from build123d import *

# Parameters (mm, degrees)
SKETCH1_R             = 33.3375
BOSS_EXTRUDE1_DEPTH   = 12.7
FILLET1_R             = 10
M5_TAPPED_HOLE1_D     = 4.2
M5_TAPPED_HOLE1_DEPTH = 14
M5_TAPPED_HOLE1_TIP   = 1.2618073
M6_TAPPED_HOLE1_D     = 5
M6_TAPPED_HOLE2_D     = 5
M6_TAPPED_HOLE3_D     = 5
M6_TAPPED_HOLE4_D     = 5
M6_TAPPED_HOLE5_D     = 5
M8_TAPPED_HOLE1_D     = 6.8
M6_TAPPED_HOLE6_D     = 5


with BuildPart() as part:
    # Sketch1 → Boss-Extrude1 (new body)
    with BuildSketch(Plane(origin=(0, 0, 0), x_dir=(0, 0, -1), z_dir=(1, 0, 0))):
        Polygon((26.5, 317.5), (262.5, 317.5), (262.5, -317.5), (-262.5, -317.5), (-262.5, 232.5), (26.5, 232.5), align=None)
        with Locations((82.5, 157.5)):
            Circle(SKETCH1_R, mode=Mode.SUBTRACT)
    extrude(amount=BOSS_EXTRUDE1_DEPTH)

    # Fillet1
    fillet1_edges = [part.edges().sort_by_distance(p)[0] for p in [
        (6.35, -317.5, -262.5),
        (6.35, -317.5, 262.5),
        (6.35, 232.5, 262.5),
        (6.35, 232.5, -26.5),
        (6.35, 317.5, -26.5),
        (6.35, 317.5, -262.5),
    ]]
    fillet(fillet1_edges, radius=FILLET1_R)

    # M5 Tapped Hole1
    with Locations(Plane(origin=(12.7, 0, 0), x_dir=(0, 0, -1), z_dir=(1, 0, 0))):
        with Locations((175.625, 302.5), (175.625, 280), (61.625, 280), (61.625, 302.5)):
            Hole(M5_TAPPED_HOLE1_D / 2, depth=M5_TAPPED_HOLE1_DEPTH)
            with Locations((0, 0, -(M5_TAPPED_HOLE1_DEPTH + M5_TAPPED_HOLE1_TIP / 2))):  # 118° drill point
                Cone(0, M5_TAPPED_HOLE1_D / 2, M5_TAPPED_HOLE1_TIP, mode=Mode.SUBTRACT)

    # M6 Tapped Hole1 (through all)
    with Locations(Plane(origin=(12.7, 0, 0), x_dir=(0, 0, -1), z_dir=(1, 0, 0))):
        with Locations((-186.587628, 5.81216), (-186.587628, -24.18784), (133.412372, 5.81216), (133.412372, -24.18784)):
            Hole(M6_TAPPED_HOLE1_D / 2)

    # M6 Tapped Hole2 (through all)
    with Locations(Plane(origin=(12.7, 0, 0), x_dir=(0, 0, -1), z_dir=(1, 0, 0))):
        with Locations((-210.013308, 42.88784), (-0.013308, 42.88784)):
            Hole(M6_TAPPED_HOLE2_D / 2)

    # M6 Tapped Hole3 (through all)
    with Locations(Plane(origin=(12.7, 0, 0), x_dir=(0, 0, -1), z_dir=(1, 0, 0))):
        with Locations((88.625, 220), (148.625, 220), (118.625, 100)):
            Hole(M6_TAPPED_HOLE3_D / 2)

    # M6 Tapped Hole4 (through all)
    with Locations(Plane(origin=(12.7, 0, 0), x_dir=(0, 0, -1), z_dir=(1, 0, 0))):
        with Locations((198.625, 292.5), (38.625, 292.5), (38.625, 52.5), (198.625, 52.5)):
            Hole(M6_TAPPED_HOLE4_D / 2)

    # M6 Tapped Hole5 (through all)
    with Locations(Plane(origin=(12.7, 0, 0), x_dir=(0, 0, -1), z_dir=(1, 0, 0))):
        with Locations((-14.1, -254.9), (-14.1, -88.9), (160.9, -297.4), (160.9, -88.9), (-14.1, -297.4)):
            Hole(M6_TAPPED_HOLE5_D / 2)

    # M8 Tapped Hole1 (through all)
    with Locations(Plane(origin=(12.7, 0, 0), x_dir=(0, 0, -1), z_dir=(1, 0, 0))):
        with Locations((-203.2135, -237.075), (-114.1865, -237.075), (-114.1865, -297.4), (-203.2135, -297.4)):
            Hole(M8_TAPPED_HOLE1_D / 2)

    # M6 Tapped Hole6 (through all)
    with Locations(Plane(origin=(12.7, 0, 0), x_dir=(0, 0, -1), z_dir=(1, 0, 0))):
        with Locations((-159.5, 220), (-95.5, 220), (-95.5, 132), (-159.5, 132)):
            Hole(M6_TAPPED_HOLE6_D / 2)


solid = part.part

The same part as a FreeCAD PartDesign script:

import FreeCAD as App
import Part
import Sketcher


def edges_at(feature, points):
    """Names of the edges that pass closest to the given points."""
    edges = feature.Shape.Edges
    near = lambda p: min(range(len(edges)), key=lambda i: edges[i].distToShape(Part.Vertex(*p))[0])
    return sorted({f"Edge{near(p) + 1}" for p in points})


def add_polygon(sketch, points):
    """Adds a closed chain of lines whose ends are joined by coincident constraints."""
    first, n = sketch.GeometryCount, len(points)
    for a, b in zip(points, points[1:] + points[:1]):
        sketch.addGeometry(Part.LineSegment(App.Vector(*a, 0), App.Vector(*b, 0)), False)
    for i in range(n):
        sketch.addConstraint(Sketcher.Constraint("Coincident", first + i, 2, first + (i + 1) % n, 1))

doc = App.newDocument("Part")
body = doc.addObject("PartDesign::Body", "Body")

sketch1 = body.newObject("Sketcher::SketchObject", "Sketch")
sketch1.AttachmentSupport = (doc.getObject("YZ_Plane"), [""])
sketch1.MapMode = "FlatFace"
add_polygon(sketch1, [(318, -262), (318, -26), (232, -26), (232, 262), (-318, 262), (-318, -262)])
sketch1.addGeometry(Part.Circle(App.Vector(158, -82, 0), App.Vector(0, 0, 1), 33), False)
sketch1.addConstraint([
    Sketcher.Constraint("Vertical", 0),
    Sketcher.Constraint("Horizontal", 1),
    Sketcher.Constraint("Vertical", 2),
    Sketcher.Constraint("Horizontal", 3),
    Sketcher.Constraint("Vertical", 4),
    Sketcher.Constraint("Horizontal", 5),
    Sketcher.Constraint("Symmetric", 3, 2, 5, 2, -1, 1),
    Sketcher.Constraint("DistanceX", 1, 2, 1, 1, 85.0),
    Sketcher.Constraint("DistanceX", 3, 2, 3, 1, 550.0),
    Sketcher.Constraint("DistanceY", 0, 1, 0, 2, 236.0),
    Sketcher.Constraint("DistanceY", 2, 1, 2, 2, 289.0),
    Sketcher.Constraint("Diameter", 6, 66.675),
    Sketcher.Constraint("DistanceX", 6, 3, 0, 2, 160.0),
    Sketcher.Constraint("DistanceY", 6, 3, 0, 2, 56.0),
])
pad1 = body.newObject("PartDesign::Pad", "Pad")
pad1.Profile = sketch1
pad1.Length = 12.7
doc.recompute()

fillet = body.newObject("PartDesign::Fillet", "Fillet")
fillet.Base = (pad1, edges_at(pad1, [
    (6.35, -317.5, -262.5),
    (6.35, -317.5, 262.5),
    (6.35, 232.5, 262.5),
    (6.35, 232.5, -26.5),
    (6.35, 317.5, -26.5),
    (6.35, 317.5, -262.5),
]))
fillet.Radius = 10

sketch2 = body.newObject("Sketcher::SketchObject", "Sketch001")
sketch2.AttachmentSupport = (doc.getObject("YZ_Plane"), [""])
sketch2.MapMode = "FlatFace"
sketch2.AttachmentOffset = App.Placement(App.Vector(0, 0, 12.7), App.Rotation())
sketch2.addGeometry([
    Part.Circle(App.Vector(302.5, -175.6, 0), App.Vector(0, 0, 1), 2.1),
    Part.Circle(App.Vector(280, -175.6, 0), App.Vector(0, 0, 1), 2.1),
    Part.Circle(App.Vector(280, -61.6, 0), App.Vector(0, 0, 1), 2.1),
    Part.Circle(App.Vector(302.5, -61.6, 0), App.Vector(0, 0, 1), 2.1),
], False)
sketch2.addConstraint([
    Sketcher.Constraint("Equal", 0, 1),
    Sketcher.Constraint("Equal", 1, 2),
    Sketcher.Constraint("Equal", 2, 3),
    Sketcher.Constraint("Horizontal", 0, 3, 1, 3),
    Sketcher.Constraint("Horizontal", 2, 3, 3, 3),
    Sketcher.Constraint("Vertical", 1, 3, 2, 3),
    Sketcher.Constraint("Vertical", 0, 3, 3, 3),
    Sketcher.Constraint("Diameter", 0, 4.2),
    Sketcher.Constraint("DistanceX", -1, 1, 1, 3, 280.0),
    Sketcher.Constraint("DistanceY", 1, 3, 2, 3, 114.0),
    Sketcher.Constraint("DistanceX", -1, 1, 0, 3, 302.5),
    Sketcher.Constraint("DistanceY", 0, 3, -1, 1, 175.625),
])
doc.recompute()
hole = body.newObject("PartDesign::Hole", "Hole")
hole.Profile = sketch2
hole.ThreadType = "None"
hole.Diameter = 4.2
hole.DepthType = "Dimension"
hole.Depth = 14
hole.DrillPoint = "Angled"
hole.DrillPointAngle = 118

sketch3 = body.newObject("Sketcher::SketchObject", "Sketch002")
sketch3.AttachmentSupport = (doc.getObject("YZ_Plane"), [""])
sketch3.MapMode = "FlatFace"
sketch3.AttachmentOffset = App.Placement(App.Vector(0, 0, 12.7), App.Rotation())
sketch3.addGeometry([
    Part.Circle(App.Vector(5.8, 186.6, 0), App.Vector(0, 0, 1), 2.5),
    Part.Circle(App.Vector(-24.2, 186.6, 0), App.Vector(0, 0, 1), 2.5),
    Part.Circle(App.Vector(5.8, -133.4, 0), App.Vector(0, 0, 1), 2.5),
    Part.Circle(App.Vector(-24.2, -133.4, 0), App.Vector(0, 0, 1), 2.5),
], False)
sketch3.addConstraint([
    Sketcher.Constraint("Equal", 0, 1),
    Sketcher.Constraint("Equal", 1, 2),
    Sketcher.Constraint("Equal", 2, 3),
    Sketcher.Constraint("Horizontal", 0, 3, 1, 3),
    Sketcher.Constraint("Horizontal", 2, 3, 3, 3),
    Sketcher.Constraint("Vertical", 0, 3, 2, 3),
    Sketcher.Constraint("Vertical", 1, 3, 3, 3),
    Sketcher.Constraint("Diameter", 0, 5.0),
    Sketcher.Constraint("DistanceX", 1, 3, 0, 3, 30.0),
    Sketcher.Constraint("DistanceY", 2, 3, 0, 3, 320.0),
    Sketcher.Constraint("DistanceX", -1, 1, 0, 3, 5.81216),
    Sketcher.Constraint("DistanceY", -1, 1, 0, 3, 186.587628),
])
doc.recompute()
hole2 = body.newObject("PartDesign::Hole", "Hole001")
hole2.Profile = sketch3
hole2.ThreadType = "None"
hole2.Diameter = 5
hole2.DepthType = "ThroughAll"

sketch4 = body.newObject("Sketcher::SketchObject", "Sketch003")
sketch4.AttachmentSupport = (doc.getObject("YZ_Plane"), [""])
sketch4.MapMode = "FlatFace"
sketch4.AttachmentOffset = App.Placement(App.Vector(0, 0, 12.7), App.Rotation())
sketch4.addGeometry([
    Part.Circle(App.Vector(42.9, 210, 0), App.Vector(0, 0, 1), 2.5),
    Part.Circle(App.Vector(42.9, 0, 0), App.Vector(0, 0, 1), 2.5),
], False)
sketch4.addConstraint([
    Sketcher.Constraint("Equal", 0, 1),
    Sketcher.Constraint("Vertical", 0, 3, 1, 3),
    Sketcher.Constraint("Diameter", 0, 5.0),
    Sketcher.Constraint("DistanceY", 1, 3, 0, 3, 210.0),
    Sketcher.Constraint("DistanceX", -1, 1, 0, 3, 42.88784),
    Sketcher.Constraint("DistanceY", -1, 1, 0, 3, 210.013308),
])
doc.recompute()
hole3 = body.newObject("PartDesign::Hole", "Hole002")
hole3.Profile = sketch4
hole3.ThreadType = "None"
hole3.Diameter = 5
hole3.DepthType = "ThroughAll"

sketch5 = body.newObject("Sketcher::SketchObject", "Sketch004")
sketch5.AttachmentSupport = (doc.getObject("YZ_Plane"), [""])
sketch5.MapMode = "FlatFace"
sketch5.AttachmentOffset = App.Placement(App.Vector(0, 0, 12.7), App.Rotation())
sketch5.addGeometry([
    Part.Circle(App.Vector(220, -88.6, 0), App.Vector(0, 0, 1), 2.5),
    Part.Circle(App.Vector(220, -148.6, 0), App.Vector(0, 0, 1), 2.5),
    Part.Circle(App.Vector(100, -118.6, 0), App.Vector(0, 0, 1), 2.5),
], False)
sketch5.addConstraint([
    Sketcher.Constraint("Equal", 0, 1),
    Sketcher.Constraint("Equal", 1, 2),
    Sketcher.Constraint("Vertical", 0, 3, 1, 3),
    Sketcher.Constraint("Diameter", 0, 5.0),
    Sketcher.Constraint("DistanceX", -1, 1, 0, 3, 220.0),
    Sketcher.Constraint("DistanceX", -1, 1, 2, 3, 100.0),
    Sketcher.Constraint("DistanceY", 1, 3, 0, 3, 60.0),
    Sketcher.Constraint("DistanceY", 2, 3, 0, 3, 30.0),
    Sketcher.Constraint("DistanceY", 0, 3, -1, 1, 88.625),
])
doc.recompute()
hole4 = body.newObject("PartDesign::Hole", "Hole003")
hole4.Profile = sketch5
hole4.ThreadType = "None"
hole4.Diameter = 5
hole4.DepthType = "ThroughAll"

sketch6 = body.newObject("Sketcher::SketchObject", "Sketch005")
sketch6.AttachmentSupport = (doc.getObject("YZ_Plane"), [""])
sketch6.MapMode = "FlatFace"
sketch6.AttachmentOffset = App.Placement(App.Vector(0, 0, 12.7), App.Rotation())
sketch6.addGeometry([
    Part.Circle(App.Vector(292.5, -198.6, 0), App.Vector(0, 0, 1), 2.5),
    Part.Circle(App.Vector(292.5, -38.6, 0), App.Vector(0, 0, 1), 2.5),
    Part.Circle(App.Vector(52.5, -38.6, 0), App.Vector(0, 0, 1), 2.5),
    Part.Circle(App.Vector(52.5, -198.6, 0), App.Vector(0, 0, 1), 2.5),
], False)
sketch6.addConstraint([
    Sketcher.Constraint("Equal", 0, 1),
    Sketcher.Constraint("Equal", 1, 2),
    Sketcher.Constraint("Equal", 2, 3),
    Sketcher.Constraint("Horizontal", 1, 3, 2, 3),
    Sketcher.Constraint("Horizontal", 0, 3, 3, 3),
    Sketcher.Constraint("Vertical", 0, 3, 1, 3),
    Sketcher.Constraint("Vertical", 2, 3, 3, 3),
    Sketcher.Constraint("Diameter", 0, 5.0),
    Sketcher.Constraint("DistanceY", 0, 3, 1, 3, 160.0),
    Sketcher.Constraint("DistanceX", 2, 3, 1, 3, 240.0),
    Sketcher.Constraint("DistanceX", -1, 1, 0, 3, 292.5),
    Sketcher.Constraint("DistanceY", 0, 3, -1, 1, 198.625),
])
doc.recompute()
hole5 = body.newObject("PartDesign::Hole", "Hole004")
hole5.Profile = sketch6
hole5.ThreadType = "None"
hole5.Diameter = 5
hole5.DepthType = "ThroughAll"

sketch7 = body.newObject("Sketcher::SketchObject", "Sketch006")
sketch7.AttachmentSupport = (doc.getObject("YZ_Plane"), [""])
sketch7.MapMode = "FlatFace"
sketch7.AttachmentOffset = App.Placement(App.Vector(0, 0, 12.7), App.Rotation())
sketch7.addGeometry([
    Part.Circle(App.Vector(-254.9, 14.1, 0), App.Vector(0, 0, 1), 2.5),
    Part.Circle(App.Vector(-88.9, 14.1, 0), App.Vector(0, 0, 1), 2.5),
    Part.Circle(App.Vector(-297.4, -160.9, 0), App.Vector(0, 0, 1), 2.5),
    Part.Circle(App.Vector(-88.9, -160.9, 0), App.Vector(0, 0, 1), 2.5),
    Part.Circle(App.Vector(-297.4, 14.1, 0), App.Vector(0, 0, 1), 2.5),
], False)
sketch7.addConstraint([
    Sketcher.Constraint("Equal", 0, 1),
    Sketcher.Constraint("Equal", 1, 2),
    Sketcher.Constraint("Equal", 2, 3),
    Sketcher.Constraint("Equal", 3, 4),
    Sketcher.Constraint("Horizontal", 0, 3, 1, 3),
    Sketcher.Constraint("Horizontal", 2, 3, 3, 3),
    Sketcher.Constraint("Horizontal", 1, 3, 4, 3),
    Sketcher.Constraint("Vertical", 1, 3, 3, 3),
    Sketcher.Constraint("Vertical", 2, 3, 4, 3),
    Sketcher.Constraint("Diameter", 0, 5.0),
    Sketcher.Constraint("DistanceX", 0, 3, 1, 3, 166.0),
    Sketcher.Constraint("DistanceY", 2, 3, 0, 3, 175.0),
    Sketcher.Constraint("DistanceX", 0, 3, -1, 1, 254.9),
    Sketcher.Constraint("DistanceY", -1, 1, 0, 3, 14.1),
    Sketcher.Constraint("DistanceX", 2, 3, -1, 1, 297.4),
])
doc.recompute()
hole6 = body.newObject("PartDesign::Hole", "Hole005")
hole6.Profile = sketch7
hole6.ThreadType = "None"
hole6.Diameter = 5
hole6.DepthType = "ThroughAll"

sketch8 = body.newObject("Sketcher::SketchObject", "Sketch007")
sketch8.AttachmentSupport = (doc.getObject("YZ_Plane"), [""])
sketch8.MapMode = "FlatFace"
sketch8.AttachmentOffset = App.Placement(App.Vector(0, 0, 12.7), App.Rotation())
sketch8.addGeometry([
    Part.Circle(App.Vector(-237.1, 203.2, 0), App.Vector(0, 0, 1), 3.4),
    Part.Circle(App.Vector(-237.1, 114.2, 0), App.Vector(0, 0, 1), 3.4),
    Part.Circle(App.Vector(-297.4, 114.2, 0), App.Vector(0, 0, 1), 3.4),
    Part.Circle(App.Vector(-297.4, 203.2, 0), App.Vector(0, 0, 1), 3.4),
], False)
sketch8.addConstraint([
    Sketcher.Constraint("Equal", 0, 1),
    Sketcher.Constraint("Equal", 1, 2),
    Sketcher.Constraint("Equal", 2, 3),
    Sketcher.Constraint("Horizontal", 1, 3, 2, 3),
    Sketcher.Constraint("Horizontal", 0, 3, 3, 3),
    Sketcher.Constraint("Vertical", 0, 3, 1, 3),
    Sketcher.Constraint("Vertical", 2, 3, 3, 3),
    Sketcher.Constraint("Diameter", 0, 6.8),
    Sketcher.Constraint("DistanceX", 2, 3, -1, 1, 297.4),
    Sketcher.Constraint("DistanceX", 0, 3, -1, 1, 237.075),
    Sketcher.Constraint("DistanceY", 1, 3, 0, 3, 89.027),
    Sketcher.Constraint("DistanceY", -1, 1, 0, 3, 203.2135),
])
doc.recompute()
hole7 = body.newObject("PartDesign::Hole", "Hole006")
hole7.Profile = sketch8
hole7.ThreadType = "None"
hole7.Diameter = 6.8
hole7.DepthType = "ThroughAll"

sketch9 = body.newObject("Sketcher::SketchObject", "Sketch008")
sketch9.AttachmentSupport = (doc.getObject("YZ_Plane"), [""])
sketch9.MapMode = "FlatFace"
sketch9.AttachmentOffset = App.Placement(App.Vector(0, 0, 12.7), App.Rotation())
sketch9.addGeometry([
    Part.Circle(App.Vector(220, 159.5, 0), App.Vector(0, 0, 1), 2.5),
    Part.Circle(App.Vector(220, 95.5, 0), App.Vector(0, 0, 1), 2.5),
    Part.Circle(App.Vector(132, 95.5, 0), App.Vector(0, 0, 1), 2.5),
    Part.Circle(App.Vector(132, 159.5, 0), App.Vector(0, 0, 1), 2.5),
], False)
sketch9.addConstraint([
    Sketcher.Constraint("Equal", 0, 1),
    Sketcher.Constraint("Equal", 1, 2),
    Sketcher.Constraint("Equal", 2, 3),
    Sketcher.Constraint("Horizontal", 1, 3, 2, 3),
    Sketcher.Constraint("Horizontal", 0, 3, 3, 3),
    Sketcher.Constraint("Vertical", 0, 3, 1, 3),
    Sketcher.Constraint("Vertical", 2, 3, 3, 3),
    Sketcher.Constraint("Diameter", 0, 5.0),
    Sketcher.Constraint("DistanceX", -1, 1, 0, 3, 220.0),
    Sketcher.Constraint("DistanceX", -1, 1, 2, 3, 132.0),
    Sketcher.Constraint("DistanceY", 1, 3, 0, 3, 64.0),
    Sketcher.Constraint("DistanceY", -1, 1, 0, 3, 159.5),
])
doc.recompute()
hole8 = body.newObject("PartDesign::Hole", "Hole007")
hole8.Profile = sketch9
hole8.ThreadType = "None"
hole8.Diameter = 5
hole8.DepthType = "ThroughAll"

doc.recompute()
